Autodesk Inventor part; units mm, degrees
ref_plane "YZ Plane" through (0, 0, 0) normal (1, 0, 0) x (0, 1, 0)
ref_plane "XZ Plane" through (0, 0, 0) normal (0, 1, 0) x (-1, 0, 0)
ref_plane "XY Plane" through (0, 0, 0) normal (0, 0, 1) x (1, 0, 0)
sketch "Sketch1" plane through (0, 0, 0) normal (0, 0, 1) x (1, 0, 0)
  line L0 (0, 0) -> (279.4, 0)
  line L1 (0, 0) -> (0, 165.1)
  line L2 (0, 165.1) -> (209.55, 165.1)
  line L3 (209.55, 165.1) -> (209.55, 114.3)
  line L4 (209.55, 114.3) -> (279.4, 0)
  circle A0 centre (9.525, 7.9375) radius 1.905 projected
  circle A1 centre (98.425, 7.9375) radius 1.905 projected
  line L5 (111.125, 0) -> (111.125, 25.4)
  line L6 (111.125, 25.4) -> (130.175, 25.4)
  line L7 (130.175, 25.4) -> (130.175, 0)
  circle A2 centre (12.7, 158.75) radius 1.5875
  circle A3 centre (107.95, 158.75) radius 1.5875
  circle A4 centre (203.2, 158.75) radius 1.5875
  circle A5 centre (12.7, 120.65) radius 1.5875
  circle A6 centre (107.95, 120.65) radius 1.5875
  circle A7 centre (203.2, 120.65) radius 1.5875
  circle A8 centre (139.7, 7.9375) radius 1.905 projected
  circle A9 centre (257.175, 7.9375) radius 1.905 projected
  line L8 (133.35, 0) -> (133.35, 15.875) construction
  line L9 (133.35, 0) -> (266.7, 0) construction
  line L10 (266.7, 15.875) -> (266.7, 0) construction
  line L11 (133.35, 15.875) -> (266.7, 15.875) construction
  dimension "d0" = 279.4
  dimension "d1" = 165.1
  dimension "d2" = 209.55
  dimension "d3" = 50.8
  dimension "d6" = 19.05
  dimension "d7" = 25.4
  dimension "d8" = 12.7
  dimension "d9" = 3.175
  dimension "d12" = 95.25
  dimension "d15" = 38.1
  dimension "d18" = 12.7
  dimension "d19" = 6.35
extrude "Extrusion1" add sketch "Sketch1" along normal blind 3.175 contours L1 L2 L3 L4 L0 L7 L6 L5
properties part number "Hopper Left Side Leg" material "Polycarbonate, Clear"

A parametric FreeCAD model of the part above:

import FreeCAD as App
import Part
import Sketcher
from FreeCAD import Vector
Q = App.Units.Quantity

doc = App.newDocument("Part")
body = doc.addObject("PartDesign::Body", "Body")

# Sketch on XY plane
sketch1 = doc.addObject("Sketcher::SketchObject", "Sketch")
body.addObject(sketch1)
sketch1.AttachmentSupport = (doc.XY_Plane, [""])
sketch1.MapMode = "FlatFace"
sketch1.addGeometry([
    Part.LineSegment(Vector(0, 165.1, 0), Vector(0, 0, 0)),  # 0
    Part.LineSegment(Vector(0, 0, 0), Vector(111.1, 0, 0)),  # 1
    Part.LineSegment(Vector(111.1, 0, 0), Vector(111.1, 25.4, 0)),  # 2
    Part.LineSegment(Vector(111.1, 25.4, 0), Vector(130.2, 25.4, 0)),  # 3
    Part.LineSegment(Vector(130.2, 25.4, 0), Vector(130.2, 0, 0)),  # 4
    Part.LineSegment(Vector(130.2, 0, 0), Vector(279.4, 0, 0)),  # 5
    Part.LineSegment(Vector(279.4, 0, 0), Vector(209.6, 114.3, 0)),  # 6
    Part.LineSegment(Vector(209.6, 114.3, 0), Vector(209.6, 165.1, 0)),  # 7
    Part.LineSegment(Vector(209.6, 165.1, 0), Vector(0, 165.1, 0)),  # 8
    Part.Circle(Vector(9.5, 7.9, 0), Vector(0, 0, 1), 1.9),  # 9
    Part.Circle(Vector(98.4, 7.9, 0), Vector(0, 0, 1), 1.9),  # 10
    Part.Circle(Vector(139.7, 7.9, 0), Vector(0, 0, 1), 1.9),  # 11
    Part.Circle(Vector(257.2, 7.9, 0), Vector(0, 0, 1), 1.9),  # 12
    Part.Circle(Vector(12.7, 120.7, 0), Vector(0, 0, 1), 1.6),  # 13
    Part.Circle(Vector(108, 120.7, 0), Vector(0, 0, 1), 1.6),  # 14
    Part.Circle(Vector(12.7, 158.8, 0), Vector(0, 0, 1), 1.6),  # 15
    Part.Circle(Vector(108, 158.8, 0), Vector(0, 0, 1), 1.6),  # 16
    Part.Circle(Vector(203.2, 120.7, 0), Vector(0, 0, 1), 1.6),  # 17
    Part.Circle(Vector(203.2, 158.8, 0), Vector(0, 0, 1), 1.6),  # 18
], False)
sketch1.addConstraint([
    Sketcher.Constraint("Coincident", 0, 2, 1, 1),
    Sketcher.Constraint("Coincident", 1, 2, 2, 1),
    Sketcher.Constraint("Coincident", 2, 2, 3, 1),
    Sketcher.Constraint("Coincident", 3, 2, 4, 1),
    Sketcher.Constraint("Coincident", 4, 2, 5, 1),
    Sketcher.Constraint("Coincident", 5, 2, 6, 1),
    Sketcher.Constraint("Coincident", 6, 2, 7, 1),
    Sketcher.Constraint("Coincident", 7, 2, 8, 1),
    Sketcher.Constraint("Coincident", 8, 2, 0, 1),
    Sketcher.Constraint("Vertical", 0),
    Sketcher.Constraint("Horizontal", 1),
    Sketcher.Constraint("Vertical", 2),
    Sketcher.Constraint("Horizontal", 3),
    Sketcher.Constraint("Vertical", 4),
    Sketcher.Constraint("Horizontal", 5),
    Sketcher.Constraint("Vertical", 7),
    Sketcher.Constraint("Horizontal", 8),
    Sketcher.Constraint("Coincident", 0, 2, -1, 1),
    Sketcher.Constraint("Equal", 9, 10),
    Sketcher.Constraint("Equal", 10, 11),
    Sketcher.Constraint("Equal", 11, 12),
    Sketcher.Constraint("Equal", 13, 14),
    Sketcher.Constraint("Equal", 14, 15),
    Sketcher.Constraint("Equal", 15, 16),
    Sketcher.Constraint("Equal", 16, 17),
    Sketcher.Constraint("Equal", 17, 18),
    Sketcher.Constraint("PointOnObject", 4, 2, -1),
    Sketcher.Constraint("Horizontal", 9, 3, 10, 3),
    Sketcher.Constraint("Horizontal", 10, 3, 11, 3),
    Sketcher.Constraint("Horizontal", 11, 3, 12, 3),
    Sketcher.Constraint("Horizontal", 13, 3, 14, 3),
    Sketcher.Constraint("Horizontal", 15, 3, 16, 3),
    Sketcher.Constraint("Horizontal", 14, 3, 17, 3),
    Sketcher.Constraint("Horizontal", 16, 3, 18, 3),
    Sketcher.Constraint("Vertical", 13, 3, 15, 3),
    Sketcher.Constraint("Vertical", 14, 3, 16, 3),
    Sketcher.Constraint("Vertical", 17, 3, 18, 3),
    Sketcher.Constraint("DistanceY", 2, 1, 2, 2, Q("1 in")),
    Sketcher.Constraint("DistanceY", 7, 1, 7, 2, Q("2 in")),
    Sketcher.Constraint("Diameter", 13, Q("0.125 in")),
    Sketcher.Constraint("DistanceY", 0, 2, 0, 1, Q("6.5 in")),
    Sketcher.Constraint("DistanceX", -1, 1, 5, 2, Q("11 in")),
    Sketcher.Constraint("DistanceX", 3, 1, 3, 2, Q("0.75 in")),
    Sketcher.Constraint("DistanceX", 8, 2, 8, 1, Q("8.25 in")),
    Sketcher.Constraint("DistanceX", -1, 1, 13, 3, Q("0.5 in")),
    Sketcher.Constraint("DistanceY", 13, 3, 15, 3, Q("1.5 in")),
    Sketcher.Constraint("DistanceX", 10, 3, 1, 2, Q("0.5 in")),
    Sketcher.Constraint("Diameter", 9, Q("0.15 in")),
    Sketcher.Constraint("DistanceX", 13, 3, 14, 3, Q("3.75 in")),
    Sketcher.Constraint("DistanceX", 14, 3, 17, 3, Q("3.75 in")),
    Sketcher.Constraint("DistanceY", 2, 2, 14, 3, Q("3.75 in")),
    Sketcher.Constraint("DistanceX", 9, 3, 13, 3, Q("0.125 in")),
    Sketcher.Constraint("DistanceX", 13, 3, 11, 3, Q("5 in")),
    Sketcher.Constraint("DistanceX", 9, 3, 1, 2, Q("4 in")),
    Sketcher.Constraint("DistanceX", 10, 3, 12, 3, Q("6.25 in")),
    Sketcher.Constraint("DistanceY", -1, 1, 9, 3, Q("0.3125 in")),
])
pad1 = doc.addObject("PartDesign::Pad", "Pad")
body.addObject(pad1)
pad1.Profile = sketch1
pad1.Length = Q("0.125 in")

doc.recompute()
